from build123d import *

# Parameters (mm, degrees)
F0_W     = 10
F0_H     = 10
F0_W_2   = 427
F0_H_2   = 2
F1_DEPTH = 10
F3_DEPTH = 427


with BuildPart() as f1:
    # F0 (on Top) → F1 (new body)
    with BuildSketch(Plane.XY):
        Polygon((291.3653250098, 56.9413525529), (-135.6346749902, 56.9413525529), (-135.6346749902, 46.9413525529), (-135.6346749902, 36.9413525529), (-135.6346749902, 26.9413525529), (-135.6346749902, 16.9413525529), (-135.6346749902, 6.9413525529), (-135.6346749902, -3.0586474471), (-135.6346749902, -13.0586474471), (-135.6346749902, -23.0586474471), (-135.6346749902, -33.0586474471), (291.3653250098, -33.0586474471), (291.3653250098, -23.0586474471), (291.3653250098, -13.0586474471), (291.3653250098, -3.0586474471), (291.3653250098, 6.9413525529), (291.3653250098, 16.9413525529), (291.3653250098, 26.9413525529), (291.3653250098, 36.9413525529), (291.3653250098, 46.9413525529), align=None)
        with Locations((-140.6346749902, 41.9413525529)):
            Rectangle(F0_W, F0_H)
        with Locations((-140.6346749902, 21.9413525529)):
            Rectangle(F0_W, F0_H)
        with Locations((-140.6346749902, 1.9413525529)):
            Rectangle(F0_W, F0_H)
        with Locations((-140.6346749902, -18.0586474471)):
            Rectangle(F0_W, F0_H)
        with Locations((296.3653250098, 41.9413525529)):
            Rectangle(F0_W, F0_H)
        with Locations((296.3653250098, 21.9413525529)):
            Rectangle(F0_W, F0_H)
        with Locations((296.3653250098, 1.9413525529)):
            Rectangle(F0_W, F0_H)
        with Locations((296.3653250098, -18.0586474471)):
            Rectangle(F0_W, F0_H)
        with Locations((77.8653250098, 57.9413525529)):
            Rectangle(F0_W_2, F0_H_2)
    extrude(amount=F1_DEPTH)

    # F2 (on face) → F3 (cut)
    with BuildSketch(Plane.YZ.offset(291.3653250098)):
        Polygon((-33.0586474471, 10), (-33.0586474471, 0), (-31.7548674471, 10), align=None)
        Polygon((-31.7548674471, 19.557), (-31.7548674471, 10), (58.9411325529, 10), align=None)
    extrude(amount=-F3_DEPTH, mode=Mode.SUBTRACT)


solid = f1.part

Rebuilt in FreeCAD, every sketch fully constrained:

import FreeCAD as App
import Part
import Sketcher

V = App.Vector

doc = App.newDocument("Part")
body = doc.addObject("PartDesign::Body", "Body")

# Sketch on XY plane
sketch1 = body.newObject("Sketcher::SketchObject", "Sketch")
sketch1.AttachmentSupport = (doc.getObject("XY_Plane"), [""])
sketch1.MapMode = "FlatFace"
sketch1.addGeometry([
    Part.LineSegment(V(-136, 47, 0), V(-146, 47, 0)),  # 0
    Part.LineSegment(V(-146, 47, 0), V(-146, 37, 0)),  # 1
    Part.LineSegment(V(-146, 37, 0), V(-136, 37, 0)),  # 2
    Part.LineSegment(V(-136, 37, 0), V(-136, 27, 0)),  # 3
    Part.LineSegment(V(-136, 27, 0), V(-146, 27, 0)),  # 4
    Part.LineSegment(V(-146, 27, 0), V(-146, 17, 0)),  # 5
    Part.LineSegment(V(-146, 17, 0), V(-136, 17, 0)),  # 6
    Part.LineSegment(V(-136, 17, 0), V(-136, 7, 0)),  # 7
    Part.LineSegment(V(-136, 7, 0), V(-146, 7, 0)),  # 8
    Part.LineSegment(V(-146, 7, 0), V(-146, -3, 0)),  # 9
    Part.LineSegment(V(-146, -3, 0), V(-136, -3, 0)),  # 10
    Part.LineSegment(V(-136, -3, 0), V(-136, -13, 0)),  # 11
    Part.LineSegment(V(-136, -13, 0), V(-146, -13, 0)),  # 12
    Part.LineSegment(V(-146, -13, 0), V(-146, -23, 0)),  # 13
    Part.LineSegment(V(-146, -23, 0), V(-136, -23, 0)),  # 14
    Part.LineSegment(V(-136, -23, 0), V(-136, -33, 0)),  # 15
    Part.LineSegment(V(-136, -33, 0), V(291, -33, 0)),  # 16
    Part.LineSegment(V(291, -33, 0), V(291, -23, 0)),  # 17
    Part.LineSegment(V(291, -23, 0), V(301, -23, 0)),  # 18
    Part.LineSegment(V(301, -23, 0), V(301, -13, 0)),  # 19
    Part.LineSegment(V(301, -13, 0), V(291, -13, 0)),  # 20
    Part.LineSegment(V(291, -13, 0), V(291, -3, 0)),  # 21
    Part.LineSegment(V(291, -3, 0), V(301, -3, 0)),  # 22
    Part.LineSegment(V(301, -3, 0), V(301, 7, 0)),  # 23
    Part.LineSegment(V(301, 7, 0), V(291, 7, 0)),  # 24
    Part.LineSegment(V(291, 7, 0), V(291, 17, 0)),  # 25
    Part.LineSegment(V(291, 17, 0), V(301, 17, 0)),  # 26
    Part.LineSegment(V(301, 17, 0), V(301, 27, 0)),  # 27
    Part.LineSegment(V(301, 27, 0), V(291, 27, 0)),  # 28
    Part.LineSegment(V(291, 27, 0), V(291, 37, 0)),  # 29
    Part.LineSegment(V(291, 37, 0), V(301, 37, 0)),  # 30
    Part.LineSegment(V(301, 37, 0), V(301, 47, 0)),  # 31
    Part.LineSegment(V(301, 47, 0), V(291, 47, 0)),  # 32
    Part.LineSegment(V(291, 47, 0), V(291, 59, 0)),  # 33
    Part.LineSegment(V(291, 59, 0), V(-136, 59, 0)),  # 34
    Part.LineSegment(V(-136, 59, 0), V(-136, 47, 0)),  # 35
], False)
sketch1.addConstraint([
    Sketcher.Constraint("Coincident", 0, 2, 1, 1),
    Sketcher.Constraint("Coincident", 1, 2, 2, 1),
    Sketcher.Constraint("Coincident", 2, 2, 3, 1),
    Sketcher.Constraint("Coincident", 3, 2, 4, 1),
    Sketcher.Constraint("Coincident", 4, 2, 5, 1),
    Sketcher.Constraint("Coincident", 5, 2, 6, 1),
    Sketcher.Constraint("Coincident", 6, 2, 7, 1),
    Sketcher.Constraint("Coincident", 7, 2, 8, 1),
    Sketcher.Constraint("Coincident", 8, 2, 9, 1),
    Sketcher.Constraint("Coincident", 9, 2, 10, 1),
    Sketcher.Constraint("Coincident", 10, 2, 11, 1),
    Sketcher.Constraint("Coincident", 11, 2, 12, 1),
    Sketcher.Constraint("Coincident", 12, 2, 13, 1),
    Sketcher.Constraint("Coincident", 13, 2, 14, 1),
    Sketcher.Constraint("Coincident", 14, 2, 15, 1),
    Sketcher.Constraint("Coincident", 15, 2, 16, 1),
    Sketcher.Constraint("Coincident", 16, 2, 17, 1),
    Sketcher.Constraint("Coincident", 17, 2, 18, 1),
    Sketcher.Constraint("Coincident", 18, 2, 19, 1),
    Sketcher.Constraint("Coincident", 19, 2, 20, 1),
    Sketcher.Constraint("Coincident", 20, 2, 21, 1),
    Sketcher.Constraint("Coincident", 21, 2, 22, 1),
    Sketcher.Constraint("Coincident", 22, 2, 23, 1),
    Sketcher.Constraint("Coincident", 23, 2, 24, 1),
    Sketcher.Constraint("Coincident", 24, 2, 25, 1),
    Sketcher.Constraint("Coincident", 25, 2, 26, 1),
    Sketcher.Constraint("Coincident", 26, 2, 27, 1),
    Sketcher.Constraint("Coincident", 27, 2, 28, 1),
    Sketcher.Constraint("Coincident", 28, 2, 29, 1),
    Sketcher.Constraint("Coincident", 29, 2, 30, 1),
    Sketcher.Constraint("Coincident", 30, 2, 31, 1),
    Sketcher.Constraint("Coincident", 31, 2, 32, 1),
    Sketcher.Constraint("Coincident", 32, 2, 33, 1),
    Sketcher.Constraint("Coincident", 33, 2, 34, 1),
    Sketcher.Constraint("Coincident", 34, 2, 35, 1),
    Sketcher.Constraint("Coincident", 35, 2, 0, 1),
    Sketcher.Constraint("Horizontal", 0),
    Sketcher.Constraint("Vertical", 1),
    Sketcher.Constraint("Horizontal", 2),
    Sketcher.Constraint("Vertical", 3),
    Sketcher.Constraint("Horizontal", 4),
    Sketcher.Constraint("Vertical", 5),
    Sketcher.Constraint("Horizontal", 6),
    Sketcher.Constraint("Vertical", 7),
    Sketcher.Constraint("Horizontal", 8),
    Sketcher.Constraint("Vertical", 9),
    Sketcher.Constraint("Horizontal", 10),
    Sketcher.Constraint("Vertical", 11),
    Sketcher.Constraint("Horizontal", 12),
    Sketcher.Constraint("Vertical", 13),
    Sketcher.Constraint("Horizontal", 14),
    Sketcher.Constraint("Vertical", 15),
    Sketcher.Constraint("Horizontal", 16),
    Sketcher.Constraint("Vertical", 17),
    Sketcher.Constraint("Horizontal", 18),
    Sketcher.Constraint("Vertical", 19),
    Sketcher.Constraint("Horizontal", 20),
    Sketcher.Constraint("Vertical", 21),
    Sketcher.Constraint("Horizontal", 22),
    Sketcher.Constraint("Vertical", 23),
    Sketcher.Constraint("Horizontal", 24),
    Sketcher.Constraint("Vertical", 25),
    Sketcher.Constraint("Horizontal", 26),
    Sketcher.Constraint("Vertical", 27),
    Sketcher.Constraint("Horizontal", 28),
    Sketcher.Constraint("Vertical", 29),
    Sketcher.Constraint("Horizontal", 30),
    Sketcher.Constraint("Vertical", 31),
    Sketcher.Constraint("Horizontal", 32),
    Sketcher.Constraint("Vertical", 33),
    Sketcher.Constraint("Horizontal", 34),
    Sketcher.Constraint("Vertical", 35),
    Sketcher.Constraint("Horizontal", 14, 2, 17, 2),
    Sketcher.Constraint("Horizontal", 12, 2, 19, 2),
    Sketcher.Constraint("Horizontal", 10, 2, 21, 2),
    Sketcher.Constraint("Horizontal", 8, 2, 23, 2),
    Sketcher.Constraint("Horizontal", 6, 2, 25, 2),
    Sketcher.Constraint("Horizontal", 4, 2, 27, 2),
    Sketcher.Constraint("Horizontal", 2, 2, 29, 2),
    Sketcher.Constraint("Horizontal", 0, 2, 31, 2),
    Sketcher.Constraint("Vertical", 1, 2, 4, 2),
    Sketcher.Constraint("Vertical", 3, 2, 6, 2),
    Sketcher.Constraint("Vertical", 5, 2, 8, 2),
    Sketcher.Constraint("Vertical", 7, 2, 10, 2),
    Sketcher.Constraint("Vertical", 9, 2, 12, 2),
    Sketcher.Constraint("Vertical", 11, 2, 14, 2),
    Sketcher.Constraint("Vertical", 17, 2, 20, 2),
    Sketcher.Constraint("Vertical", 19, 2, 22, 2),
    Sketcher.Constraint("Vertical", 21, 2, 24, 2),
    Sketcher.Constraint("Vertical", 23, 2, 26, 2),
    Sketcher.Constraint("Vertical", 25, 2, 28, 2),
    Sketcher.Constraint("Vertical", 27, 2, 30, 2),
    Sketcher.Constraint("Vertical", 29, 2, 32, 2),
    Sketcher.Constraint("Vertical", 15, 2, 34, 2),
    Sketcher.Constraint("Equal", 14, 18),
    Sketcher.Constraint("Equal", 32, 1),
    Sketcher.Constraint("Equal", 1, 3),
    Sketcher.Constraint("Equal", 3, 5),
    Sketcher.Constraint("Equal", 5, 7),
    Sketcher.Constraint("Equal", 7, 9),
    Sketcher.Constraint("Equal", 9, 11),
    Sketcher.Constraint("Equal", 11, 13),
    Sketcher.Constraint("Equal", 13, 15),
    Sketcher.Constraint("DistanceX", 0, 2, 0, 1, 10.0),
    Sketcher.Constraint("DistanceX", 16, 1, 16, 2, 427.0),
    Sketcher.Constraint("DistanceY", 33, 1, 33, 2, 12.0),
    Sketcher.Constraint("DistanceX", 0, 2, -1, 1, 145.634675),
    Sketcher.Constraint("DistanceY", -1, 1, 0, 2, 46.941353),
])
pad1 = body.newObject("PartDesign::Pad", "Pad")
pad1.Profile = sketch1
pad1.Length = 10

# Sketch on YZ plane
sketch2 = body.newObject("Sketcher::SketchObject", "Sketch001")
sketch2.AttachmentSupport = (doc.getObject("YZ_Plane"), [""])
sketch2.MapMode = "FlatFace"
sketch2.AttachmentOffset = App.Placement(V(0, 0, 291.365325), App.Rotation())
sketch2.addGeometry([
    Part.LineSegment(V(-33.1, 10, 0), V(-33.1, 0, 0)),  # 0
    Part.LineSegment(V(-33.1, 0, 0), V(-31.8, 10, 0)),  # 1
    Part.LineSegment(V(-31.8, 10, 0), V(-33.1, 10, 0)),  # 2
    Part.LineSegment(V(-31.8, 19.6, 0), V(-31.8, 10, 0)),  # 3
    Part.LineSegment(V(-31.8, 10, 0), V(58.9, 10, 0)),  # 4
    Part.LineSegment(V(58.9, 10, 0), V(-31.8, 19.6, 0)),  # 5
], False)
sketch2.addConstraint([
    Sketcher.Constraint("Coincident", 0, 2, 1, 1),
    Sketcher.Constraint("Coincident", 1, 2, 2, 1),
    Sketcher.Constraint("Coincident", 2, 2, 0, 1),
    Sketcher.Constraint("Coincident", 3, 2, 4, 1),
    Sketcher.Constraint("Coincident", 4, 2, 5, 1),
    Sketcher.Constraint("Coincident", 5, 2, 3, 1),
    Sketcher.Constraint("Vertical", 0),
    Sketcher.Constraint("Horizontal", 2),
    Sketcher.Constraint("Vertical", 3),
    Sketcher.Constraint("Horizontal", 4),
    Sketcher.Constraint("Coincident", 3, 2, 1, 2),
    Sketcher.Constraint("PointOnObject", 0, 2, -1),
    Sketcher.Constraint("DistanceY", 0, 2, 0, 1, 10.0),
    Sketcher.Constraint("DistanceX", 4, 1, 4, 2, 90.696),
    Sketcher.Constraint("DistanceY", 3, 2, 3, 1, 9.557),
    Sketcher.Constraint("DistanceX", 2, 2, 2, 1, 1.30378),
    Sketcher.Constraint("DistanceX", 0, 2, -1, 1, 33.058647),
])
pocket1 = body.newObject("PartDesign::Pocket", "Pocket")
pocket1.Profile = sketch2
pocket1.Length = 427

doc.recompute()
